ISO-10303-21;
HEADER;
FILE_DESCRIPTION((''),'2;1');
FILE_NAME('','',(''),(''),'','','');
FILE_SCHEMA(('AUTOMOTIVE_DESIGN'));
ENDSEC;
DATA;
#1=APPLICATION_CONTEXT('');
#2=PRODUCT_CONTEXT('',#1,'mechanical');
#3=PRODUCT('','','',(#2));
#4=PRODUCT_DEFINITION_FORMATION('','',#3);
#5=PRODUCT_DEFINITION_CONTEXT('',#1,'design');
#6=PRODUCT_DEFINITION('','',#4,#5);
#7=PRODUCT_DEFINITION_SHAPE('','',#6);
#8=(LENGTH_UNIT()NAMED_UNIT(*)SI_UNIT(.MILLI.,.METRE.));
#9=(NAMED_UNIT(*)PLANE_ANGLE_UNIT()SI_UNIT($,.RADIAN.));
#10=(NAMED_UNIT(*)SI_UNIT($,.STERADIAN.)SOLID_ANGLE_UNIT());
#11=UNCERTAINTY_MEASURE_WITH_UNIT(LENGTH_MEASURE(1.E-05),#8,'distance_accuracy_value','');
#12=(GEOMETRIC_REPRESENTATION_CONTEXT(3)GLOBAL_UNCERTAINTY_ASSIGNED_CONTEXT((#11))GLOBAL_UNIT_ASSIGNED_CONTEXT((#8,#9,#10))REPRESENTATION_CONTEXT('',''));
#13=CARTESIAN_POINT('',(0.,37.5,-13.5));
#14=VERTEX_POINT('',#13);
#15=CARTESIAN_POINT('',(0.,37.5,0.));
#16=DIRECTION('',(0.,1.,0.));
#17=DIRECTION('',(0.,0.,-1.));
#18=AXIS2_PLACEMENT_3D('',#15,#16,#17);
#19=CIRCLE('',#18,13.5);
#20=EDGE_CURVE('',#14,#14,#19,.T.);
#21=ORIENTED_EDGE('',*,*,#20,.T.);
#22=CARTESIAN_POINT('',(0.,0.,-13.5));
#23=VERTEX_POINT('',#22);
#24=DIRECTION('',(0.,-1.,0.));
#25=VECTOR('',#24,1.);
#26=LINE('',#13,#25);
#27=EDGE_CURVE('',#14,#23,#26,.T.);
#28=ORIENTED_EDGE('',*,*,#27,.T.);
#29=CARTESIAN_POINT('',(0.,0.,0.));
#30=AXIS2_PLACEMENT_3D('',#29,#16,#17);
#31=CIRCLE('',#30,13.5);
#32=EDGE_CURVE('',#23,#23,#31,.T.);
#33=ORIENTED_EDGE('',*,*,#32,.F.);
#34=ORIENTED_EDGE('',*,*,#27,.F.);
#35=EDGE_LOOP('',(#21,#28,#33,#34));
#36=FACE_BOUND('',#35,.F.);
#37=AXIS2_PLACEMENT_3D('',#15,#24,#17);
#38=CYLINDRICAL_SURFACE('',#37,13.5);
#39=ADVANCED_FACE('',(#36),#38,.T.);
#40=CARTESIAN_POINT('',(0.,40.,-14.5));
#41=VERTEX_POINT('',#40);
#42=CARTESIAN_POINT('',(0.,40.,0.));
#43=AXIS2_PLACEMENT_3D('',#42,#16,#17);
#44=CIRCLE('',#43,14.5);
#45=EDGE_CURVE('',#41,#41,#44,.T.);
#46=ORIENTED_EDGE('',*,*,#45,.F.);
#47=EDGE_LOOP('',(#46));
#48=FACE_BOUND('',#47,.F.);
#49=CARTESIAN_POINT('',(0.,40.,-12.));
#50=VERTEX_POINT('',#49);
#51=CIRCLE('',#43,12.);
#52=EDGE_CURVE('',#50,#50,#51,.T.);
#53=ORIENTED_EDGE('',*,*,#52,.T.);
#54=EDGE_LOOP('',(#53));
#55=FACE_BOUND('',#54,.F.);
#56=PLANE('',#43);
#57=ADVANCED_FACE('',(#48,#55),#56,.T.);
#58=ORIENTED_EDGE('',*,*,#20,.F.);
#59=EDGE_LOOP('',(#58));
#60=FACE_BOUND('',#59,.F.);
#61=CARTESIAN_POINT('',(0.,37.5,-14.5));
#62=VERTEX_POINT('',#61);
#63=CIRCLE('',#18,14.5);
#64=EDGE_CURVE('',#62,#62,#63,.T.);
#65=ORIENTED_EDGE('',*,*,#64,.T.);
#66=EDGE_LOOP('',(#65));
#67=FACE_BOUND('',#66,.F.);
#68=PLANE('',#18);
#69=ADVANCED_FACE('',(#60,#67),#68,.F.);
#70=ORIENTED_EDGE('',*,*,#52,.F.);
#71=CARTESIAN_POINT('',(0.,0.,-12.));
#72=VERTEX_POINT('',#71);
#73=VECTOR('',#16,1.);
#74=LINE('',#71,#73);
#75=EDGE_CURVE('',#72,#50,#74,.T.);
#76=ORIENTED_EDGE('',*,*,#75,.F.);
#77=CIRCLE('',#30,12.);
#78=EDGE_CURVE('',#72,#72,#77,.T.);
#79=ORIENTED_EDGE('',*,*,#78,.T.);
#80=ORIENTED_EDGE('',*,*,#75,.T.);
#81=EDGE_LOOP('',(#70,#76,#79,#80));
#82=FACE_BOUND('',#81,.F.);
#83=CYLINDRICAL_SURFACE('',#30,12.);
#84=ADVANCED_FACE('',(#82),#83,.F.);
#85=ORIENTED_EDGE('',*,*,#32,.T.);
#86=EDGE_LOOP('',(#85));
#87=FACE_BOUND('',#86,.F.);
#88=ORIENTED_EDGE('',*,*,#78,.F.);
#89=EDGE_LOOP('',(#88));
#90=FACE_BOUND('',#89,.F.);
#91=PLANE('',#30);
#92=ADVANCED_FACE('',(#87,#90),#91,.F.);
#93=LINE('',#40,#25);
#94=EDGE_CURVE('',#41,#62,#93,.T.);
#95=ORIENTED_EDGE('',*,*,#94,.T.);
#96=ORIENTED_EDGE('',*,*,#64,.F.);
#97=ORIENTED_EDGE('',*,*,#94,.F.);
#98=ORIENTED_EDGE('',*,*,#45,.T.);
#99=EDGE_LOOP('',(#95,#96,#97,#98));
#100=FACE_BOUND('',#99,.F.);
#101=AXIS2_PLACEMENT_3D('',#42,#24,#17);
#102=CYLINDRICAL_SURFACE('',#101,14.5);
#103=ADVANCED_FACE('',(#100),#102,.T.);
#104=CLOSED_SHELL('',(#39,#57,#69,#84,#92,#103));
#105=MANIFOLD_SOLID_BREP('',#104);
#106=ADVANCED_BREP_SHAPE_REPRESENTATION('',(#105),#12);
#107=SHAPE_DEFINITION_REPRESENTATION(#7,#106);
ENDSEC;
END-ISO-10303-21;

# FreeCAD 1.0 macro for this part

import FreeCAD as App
import Part
import Sketcher
from FreeCAD import Vector

doc = App.newDocument("Part")
params = doc.addObject("Spreadsheet::Sheet", "Params")
for row, (alias, value) in enumerate([
    ("sketch1_width", "40 mm"),
    ("sketch1_width2", "2.5 mm"),
    ("revolution_angle", "360 deg"),
], start=1):
    params.set(f"A{row}", alias)
    params.set(f"B{row}", "=" + value)
    params.setAlias(f"B{row}", alias)

body = doc.addObject("PartDesign::Body", "Body")

sketch1 = body.newObject("Sketcher::SketchObject", "Sketch")
sketch1.AttachmentSupport = (doc.getObject("YZ_Plane"), [""])
sketch1.MapMode = "FlatFace"
sketch1.addGeometry(Part.LineSegment(Vector(40, -12, 0), Vector(0, -12, 0)), False)
sketch1.addGeometry(Part.LineSegment(Vector(0, -12, 0), Vector(0, -13.5, 0)), False)
sketch1.addGeometry(Part.LineSegment(Vector(0, -13.5, 0), Vector(37.5, -13.5, 0)), False)
sketch1.addGeometry(Part.LineSegment(Vector(37.5, -13.5, 0), Vector(37.5, -14.5, 0)), False)
sketch1.addGeometry(Part.LineSegment(Vector(37.5, -14.5, 0), Vector(40, -14.5, 0)), False)
sketch1.addGeometry(Part.LineSegment(Vector(40, -14.5, 0), Vector(40, -12, 0)), False)
sketch1.addConstraint(Sketcher.Constraint("Coincident", 0, 2, 1, 1))
sketch1.addConstraint(Sketcher.Constraint("Coincident", 1, 2, 2, 1))
sketch1.addConstraint(Sketcher.Constraint("Coincident", 2, 2, 3, 1))
sketch1.addConstraint(Sketcher.Constraint("Coincident", 3, 2, 4, 1))
sketch1.addConstraint(Sketcher.Constraint("Coincident", 4, 2, 5, 1))
sketch1.addConstraint(Sketcher.Constraint("Coincident", 5, 2, 0, 1))
sketch1.addConstraint(Sketcher.Constraint("Horizontal", 0))
sketch1.addConstraint(Sketcher.Constraint("Vertical", 1))
sketch1.addConstraint(Sketcher.Constraint("Horizontal", 2))
sketch1.addConstraint(Sketcher.Constraint("Vertical", 3))
sketch1.addConstraint(Sketcher.Constraint("Horizontal", 4))
sketch1.addConstraint(Sketcher.Constraint("Vertical", 5))
sketch1.addConstraint(Sketcher.Constraint("PointOnObject", 0, 2, -2))
sketch1.addConstraint(Sketcher.Constraint("Equal", 4, 5))
sketch1.addConstraint(Sketcher.Constraint("DistanceX", 0, 2, 0, 1, 40.0))
sketch1.addConstraint(Sketcher.Constraint("DistanceX", 4, 1, 4, 2, 2.5))
sketch1.addConstraint(Sketcher.Constraint("DistanceY", 0, 2, -1, 1, 12.0))
sketch1.addConstraint(Sketcher.Constraint("DistanceY", 1, 2, -1, 1, 13.5))
sketch1.setExpression("Constraints[14]", "Params.sketch1_width")
sketch1.setExpression("Constraints[15]", "Params.sketch1_width2")
revolution = body.newObject("PartDesign::Revolution", "Revolution")
revolution.Profile = sketch1
revolution.ReferenceAxis = (sketch1, ["H_Axis"])
revolution.setExpression("Angle", "Params.revolution_angle")

doc.recompute()
